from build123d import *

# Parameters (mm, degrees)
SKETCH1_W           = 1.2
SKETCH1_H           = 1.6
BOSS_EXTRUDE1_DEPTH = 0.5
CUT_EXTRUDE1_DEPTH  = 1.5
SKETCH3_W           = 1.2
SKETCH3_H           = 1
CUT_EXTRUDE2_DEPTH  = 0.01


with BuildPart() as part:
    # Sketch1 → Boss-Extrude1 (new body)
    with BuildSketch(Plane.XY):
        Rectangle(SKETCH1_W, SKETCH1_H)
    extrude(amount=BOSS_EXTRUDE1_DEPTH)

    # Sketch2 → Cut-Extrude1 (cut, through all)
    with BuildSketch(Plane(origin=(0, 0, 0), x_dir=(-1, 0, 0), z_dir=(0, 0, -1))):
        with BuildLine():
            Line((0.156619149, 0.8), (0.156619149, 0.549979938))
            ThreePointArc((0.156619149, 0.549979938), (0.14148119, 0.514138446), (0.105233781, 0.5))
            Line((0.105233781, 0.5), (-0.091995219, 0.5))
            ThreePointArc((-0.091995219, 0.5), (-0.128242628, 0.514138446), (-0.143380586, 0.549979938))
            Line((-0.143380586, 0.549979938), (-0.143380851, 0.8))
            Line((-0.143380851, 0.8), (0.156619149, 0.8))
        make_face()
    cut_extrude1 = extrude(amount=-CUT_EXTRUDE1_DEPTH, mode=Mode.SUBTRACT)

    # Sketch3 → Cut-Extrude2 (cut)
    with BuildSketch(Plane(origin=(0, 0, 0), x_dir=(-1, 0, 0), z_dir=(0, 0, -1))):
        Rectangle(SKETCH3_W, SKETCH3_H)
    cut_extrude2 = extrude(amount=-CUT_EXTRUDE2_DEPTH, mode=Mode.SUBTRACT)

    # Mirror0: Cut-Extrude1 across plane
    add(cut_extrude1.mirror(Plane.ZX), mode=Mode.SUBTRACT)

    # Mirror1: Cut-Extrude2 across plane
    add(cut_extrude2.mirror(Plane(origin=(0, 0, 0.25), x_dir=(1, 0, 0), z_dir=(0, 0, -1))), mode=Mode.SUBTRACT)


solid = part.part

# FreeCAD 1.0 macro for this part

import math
import FreeCAD as App
import Part
import Sketcher

V = App.Vector


def add_polygon(sketch, points):
    """Adds a closed chain of lines whose ends are joined by coincident constraints."""
    first, n = sketch.GeometryCount, len(points)
    for a, b in zip(points, points[1:] + points[:1]):
        sketch.addGeometry(Part.LineSegment(App.Vector(*a, 0), App.Vector(*b, 0)), False)
    for i in range(n):
        sketch.addConstraint(Sketcher.Constraint("Coincident", first + i, 2, first + (i + 1) % n, 1))

doc = App.newDocument("Part")
body = doc.addObject("PartDesign::Body", "Body")

sketch1 = body.newObject("Sketcher::SketchObject", "Sketch")
sketch1.AttachmentSupport = (doc.getObject("XY_Plane"), [""])
sketch1.MapMode = "FlatFace"
add_polygon(sketch1, [(-0.6, 0.8), (-0.6, -0.8), (0.6, -0.8), (0.6, 0.8)])
sketch1.addConstraint(Sketcher.Constraint("Vertical", 0))
sketch1.addConstraint(Sketcher.Constraint("Horizontal", 1))
sketch1.addConstraint(Sketcher.Constraint("Vertical", 2))
sketch1.addConstraint(Sketcher.Constraint("Horizontal", 3))
sketch1.addConstraint(Sketcher.Constraint("Symmetric", 0, 2, 2, 2, -1, 1))
sketch1.addConstraint(Sketcher.Constraint("DistanceX", 1, 1, 1, 2, 1.2))
sketch1.addConstraint(Sketcher.Constraint("DistanceY", 0, 2, 0, 1, 1.6))
pad1 = body.newObject("PartDesign::Pad", "Pad")
pad1.Profile = sketch1
pad1.Length = 0.5

sketch2 = body.newObject("Sketcher::SketchObject", "Sketch001")
sketch2.AttachmentSupport = (doc.getObject("XY_Plane"), [""])
sketch2.MapMode = "FlatFace"
sketch2.addGeometry(Part.LineSegment(V(-0.157, 0.55, 0), V(-0.157, 0.8, 0)), False)
sketch2.addGeometry(Part.LineSegment(V(-0.157, 0.8, 0), V(0.143, 0.8, 0)), False)
sketch2.addGeometry(Part.LineSegment(V(0.143, 0.8, 0), V(0.143, 0.55, 0)), False)
sketch2.addGeometry(Part.ArcOfCircle(Part.Circle(V(0.093, 0.55, 0), V(0, 0, 1), 0.05), math.radians(-92), math.radians(0)), False)
sketch2.addGeometry(Part.LineSegment(V(0.092, 0.5, 0), V(-0.105, 0.5, 0)), False)
sketch2.addGeometry(Part.ArcOfCircle(Part.Circle(V(-0.107, 0.55, 0), V(0, 0, 1), 0.05), math.radians(-180), math.radians(-88)), False)
sketch2.addConstraint(Sketcher.Constraint("Coincident", 0, 2, 1, 1))
sketch2.addConstraint(Sketcher.Constraint("Coincident", 1, 2, 2, 1))
sketch2.addConstraint(Sketcher.Constraint("Tangent", 2, 2, 3, 2))
sketch2.addConstraint(Sketcher.Constraint("Coincident", 3, 1, 4, 1))
sketch2.addConstraint(Sketcher.Constraint("Coincident", 4, 2, 5, 2))
sketch2.addConstraint(Sketcher.Constraint("Tangent", 5, 1, 0, 1))
sketch2.addConstraint(Sketcher.Constraint("Vertical", 0))
sketch2.addConstraint(Sketcher.Constraint("Horizontal", 1))
sketch2.addConstraint(Sketcher.Constraint("Vertical", 2))
sketch2.addConstraint(Sketcher.Constraint("Horizontal", 4))
sketch2.addConstraint(Sketcher.Constraint("Equal", 3, 5))
sketch2.addConstraint(Sketcher.Constraint("Radius", 3, 0.049999))
sketch2.addConstraint(Sketcher.Constraint("DistanceX", 1, 1, 1, 2, 0.3))
sketch2.addConstraint(Sketcher.Constraint("DistanceY", -1, 1, 0, 2, 0.8))
sketch2.addConstraint(Sketcher.Constraint("DistanceY", -1, 1, 3, 1, 0.5))
sketch2.addConstraint(Sketcher.Constraint("DistanceX", 4, 2, 4, 1, 0.197229))
sketch2.addConstraint(Sketcher.Constraint("DistanceX", -1, 1, 3, 3, 0.093381))
sketch2.addConstraint(Sketcher.Constraint("DistanceX", -1, 1, 3, 1, 0.091995))
pocket1 = body.newObject("PartDesign::Pocket", "Pocket")
pocket1.Profile = sketch2
pocket1.Type = "ThroughAll"
pocket1.Reversed = True

sketch3 = body.newObject("Sketcher::SketchObject", "Sketch002")
sketch3.AttachmentSupport = (doc.getObject("XY_Plane"), [""])
sketch3.MapMode = "FlatFace"
add_polygon(sketch3, [(0.6, 0.5), (0.6, -0.5), (-0.6, -0.5), (-0.6, 0.5)])
sketch3.addConstraint(Sketcher.Constraint("Vertical", 0))
sketch3.addConstraint(Sketcher.Constraint("Horizontal", 1))
sketch3.addConstraint(Sketcher.Constraint("Vertical", 2))
sketch3.addConstraint(Sketcher.Constraint("Horizontal", 3))
sketch3.addConstraint(Sketcher.Constraint("Symmetric", 0, 2, 2, 2, -1, 1))
sketch3.addConstraint(Sketcher.Constraint("DistanceY", 0, 2, 0, 1, 1.0))
sketch3.addConstraint(Sketcher.Constraint("DistanceX", 1, 2, 1, 1, 1.2))
pocket2 = body.newObject("PartDesign::Pocket", "Pocket001")
pocket2.Profile = sketch3
pocket2.Length = 0.01
pocket2.Reversed = True
doc.recompute()

mirrored = body.newObject("PartDesign::Mirrored", "Mirrored")
mirrored.Originals = [pocket1]
mirrored.MirrorPlane = (doc.getObject("XZ_Plane"), [""])
body.Tip = mirrored
doc.recompute()

datumplane = body.newObject("PartDesign::Plane", "DatumPlane")
datumplane.AttachmentSupport = (doc.getObject("XY_Plane"), [""])
datumplane.MapMode = "FlatFace"
datumplane.AttachmentOffset = App.Placement(V(0, 0, 0.25), App.Rotation())
mirrored2 = body.newObject("PartDesign::Mirrored", "Mirrored001")
mirrored2.Originals = [pocket2]
mirrored2.MirrorPlane = (datumplane, [""])
body.Tip = mirrored2

doc.recompute()
